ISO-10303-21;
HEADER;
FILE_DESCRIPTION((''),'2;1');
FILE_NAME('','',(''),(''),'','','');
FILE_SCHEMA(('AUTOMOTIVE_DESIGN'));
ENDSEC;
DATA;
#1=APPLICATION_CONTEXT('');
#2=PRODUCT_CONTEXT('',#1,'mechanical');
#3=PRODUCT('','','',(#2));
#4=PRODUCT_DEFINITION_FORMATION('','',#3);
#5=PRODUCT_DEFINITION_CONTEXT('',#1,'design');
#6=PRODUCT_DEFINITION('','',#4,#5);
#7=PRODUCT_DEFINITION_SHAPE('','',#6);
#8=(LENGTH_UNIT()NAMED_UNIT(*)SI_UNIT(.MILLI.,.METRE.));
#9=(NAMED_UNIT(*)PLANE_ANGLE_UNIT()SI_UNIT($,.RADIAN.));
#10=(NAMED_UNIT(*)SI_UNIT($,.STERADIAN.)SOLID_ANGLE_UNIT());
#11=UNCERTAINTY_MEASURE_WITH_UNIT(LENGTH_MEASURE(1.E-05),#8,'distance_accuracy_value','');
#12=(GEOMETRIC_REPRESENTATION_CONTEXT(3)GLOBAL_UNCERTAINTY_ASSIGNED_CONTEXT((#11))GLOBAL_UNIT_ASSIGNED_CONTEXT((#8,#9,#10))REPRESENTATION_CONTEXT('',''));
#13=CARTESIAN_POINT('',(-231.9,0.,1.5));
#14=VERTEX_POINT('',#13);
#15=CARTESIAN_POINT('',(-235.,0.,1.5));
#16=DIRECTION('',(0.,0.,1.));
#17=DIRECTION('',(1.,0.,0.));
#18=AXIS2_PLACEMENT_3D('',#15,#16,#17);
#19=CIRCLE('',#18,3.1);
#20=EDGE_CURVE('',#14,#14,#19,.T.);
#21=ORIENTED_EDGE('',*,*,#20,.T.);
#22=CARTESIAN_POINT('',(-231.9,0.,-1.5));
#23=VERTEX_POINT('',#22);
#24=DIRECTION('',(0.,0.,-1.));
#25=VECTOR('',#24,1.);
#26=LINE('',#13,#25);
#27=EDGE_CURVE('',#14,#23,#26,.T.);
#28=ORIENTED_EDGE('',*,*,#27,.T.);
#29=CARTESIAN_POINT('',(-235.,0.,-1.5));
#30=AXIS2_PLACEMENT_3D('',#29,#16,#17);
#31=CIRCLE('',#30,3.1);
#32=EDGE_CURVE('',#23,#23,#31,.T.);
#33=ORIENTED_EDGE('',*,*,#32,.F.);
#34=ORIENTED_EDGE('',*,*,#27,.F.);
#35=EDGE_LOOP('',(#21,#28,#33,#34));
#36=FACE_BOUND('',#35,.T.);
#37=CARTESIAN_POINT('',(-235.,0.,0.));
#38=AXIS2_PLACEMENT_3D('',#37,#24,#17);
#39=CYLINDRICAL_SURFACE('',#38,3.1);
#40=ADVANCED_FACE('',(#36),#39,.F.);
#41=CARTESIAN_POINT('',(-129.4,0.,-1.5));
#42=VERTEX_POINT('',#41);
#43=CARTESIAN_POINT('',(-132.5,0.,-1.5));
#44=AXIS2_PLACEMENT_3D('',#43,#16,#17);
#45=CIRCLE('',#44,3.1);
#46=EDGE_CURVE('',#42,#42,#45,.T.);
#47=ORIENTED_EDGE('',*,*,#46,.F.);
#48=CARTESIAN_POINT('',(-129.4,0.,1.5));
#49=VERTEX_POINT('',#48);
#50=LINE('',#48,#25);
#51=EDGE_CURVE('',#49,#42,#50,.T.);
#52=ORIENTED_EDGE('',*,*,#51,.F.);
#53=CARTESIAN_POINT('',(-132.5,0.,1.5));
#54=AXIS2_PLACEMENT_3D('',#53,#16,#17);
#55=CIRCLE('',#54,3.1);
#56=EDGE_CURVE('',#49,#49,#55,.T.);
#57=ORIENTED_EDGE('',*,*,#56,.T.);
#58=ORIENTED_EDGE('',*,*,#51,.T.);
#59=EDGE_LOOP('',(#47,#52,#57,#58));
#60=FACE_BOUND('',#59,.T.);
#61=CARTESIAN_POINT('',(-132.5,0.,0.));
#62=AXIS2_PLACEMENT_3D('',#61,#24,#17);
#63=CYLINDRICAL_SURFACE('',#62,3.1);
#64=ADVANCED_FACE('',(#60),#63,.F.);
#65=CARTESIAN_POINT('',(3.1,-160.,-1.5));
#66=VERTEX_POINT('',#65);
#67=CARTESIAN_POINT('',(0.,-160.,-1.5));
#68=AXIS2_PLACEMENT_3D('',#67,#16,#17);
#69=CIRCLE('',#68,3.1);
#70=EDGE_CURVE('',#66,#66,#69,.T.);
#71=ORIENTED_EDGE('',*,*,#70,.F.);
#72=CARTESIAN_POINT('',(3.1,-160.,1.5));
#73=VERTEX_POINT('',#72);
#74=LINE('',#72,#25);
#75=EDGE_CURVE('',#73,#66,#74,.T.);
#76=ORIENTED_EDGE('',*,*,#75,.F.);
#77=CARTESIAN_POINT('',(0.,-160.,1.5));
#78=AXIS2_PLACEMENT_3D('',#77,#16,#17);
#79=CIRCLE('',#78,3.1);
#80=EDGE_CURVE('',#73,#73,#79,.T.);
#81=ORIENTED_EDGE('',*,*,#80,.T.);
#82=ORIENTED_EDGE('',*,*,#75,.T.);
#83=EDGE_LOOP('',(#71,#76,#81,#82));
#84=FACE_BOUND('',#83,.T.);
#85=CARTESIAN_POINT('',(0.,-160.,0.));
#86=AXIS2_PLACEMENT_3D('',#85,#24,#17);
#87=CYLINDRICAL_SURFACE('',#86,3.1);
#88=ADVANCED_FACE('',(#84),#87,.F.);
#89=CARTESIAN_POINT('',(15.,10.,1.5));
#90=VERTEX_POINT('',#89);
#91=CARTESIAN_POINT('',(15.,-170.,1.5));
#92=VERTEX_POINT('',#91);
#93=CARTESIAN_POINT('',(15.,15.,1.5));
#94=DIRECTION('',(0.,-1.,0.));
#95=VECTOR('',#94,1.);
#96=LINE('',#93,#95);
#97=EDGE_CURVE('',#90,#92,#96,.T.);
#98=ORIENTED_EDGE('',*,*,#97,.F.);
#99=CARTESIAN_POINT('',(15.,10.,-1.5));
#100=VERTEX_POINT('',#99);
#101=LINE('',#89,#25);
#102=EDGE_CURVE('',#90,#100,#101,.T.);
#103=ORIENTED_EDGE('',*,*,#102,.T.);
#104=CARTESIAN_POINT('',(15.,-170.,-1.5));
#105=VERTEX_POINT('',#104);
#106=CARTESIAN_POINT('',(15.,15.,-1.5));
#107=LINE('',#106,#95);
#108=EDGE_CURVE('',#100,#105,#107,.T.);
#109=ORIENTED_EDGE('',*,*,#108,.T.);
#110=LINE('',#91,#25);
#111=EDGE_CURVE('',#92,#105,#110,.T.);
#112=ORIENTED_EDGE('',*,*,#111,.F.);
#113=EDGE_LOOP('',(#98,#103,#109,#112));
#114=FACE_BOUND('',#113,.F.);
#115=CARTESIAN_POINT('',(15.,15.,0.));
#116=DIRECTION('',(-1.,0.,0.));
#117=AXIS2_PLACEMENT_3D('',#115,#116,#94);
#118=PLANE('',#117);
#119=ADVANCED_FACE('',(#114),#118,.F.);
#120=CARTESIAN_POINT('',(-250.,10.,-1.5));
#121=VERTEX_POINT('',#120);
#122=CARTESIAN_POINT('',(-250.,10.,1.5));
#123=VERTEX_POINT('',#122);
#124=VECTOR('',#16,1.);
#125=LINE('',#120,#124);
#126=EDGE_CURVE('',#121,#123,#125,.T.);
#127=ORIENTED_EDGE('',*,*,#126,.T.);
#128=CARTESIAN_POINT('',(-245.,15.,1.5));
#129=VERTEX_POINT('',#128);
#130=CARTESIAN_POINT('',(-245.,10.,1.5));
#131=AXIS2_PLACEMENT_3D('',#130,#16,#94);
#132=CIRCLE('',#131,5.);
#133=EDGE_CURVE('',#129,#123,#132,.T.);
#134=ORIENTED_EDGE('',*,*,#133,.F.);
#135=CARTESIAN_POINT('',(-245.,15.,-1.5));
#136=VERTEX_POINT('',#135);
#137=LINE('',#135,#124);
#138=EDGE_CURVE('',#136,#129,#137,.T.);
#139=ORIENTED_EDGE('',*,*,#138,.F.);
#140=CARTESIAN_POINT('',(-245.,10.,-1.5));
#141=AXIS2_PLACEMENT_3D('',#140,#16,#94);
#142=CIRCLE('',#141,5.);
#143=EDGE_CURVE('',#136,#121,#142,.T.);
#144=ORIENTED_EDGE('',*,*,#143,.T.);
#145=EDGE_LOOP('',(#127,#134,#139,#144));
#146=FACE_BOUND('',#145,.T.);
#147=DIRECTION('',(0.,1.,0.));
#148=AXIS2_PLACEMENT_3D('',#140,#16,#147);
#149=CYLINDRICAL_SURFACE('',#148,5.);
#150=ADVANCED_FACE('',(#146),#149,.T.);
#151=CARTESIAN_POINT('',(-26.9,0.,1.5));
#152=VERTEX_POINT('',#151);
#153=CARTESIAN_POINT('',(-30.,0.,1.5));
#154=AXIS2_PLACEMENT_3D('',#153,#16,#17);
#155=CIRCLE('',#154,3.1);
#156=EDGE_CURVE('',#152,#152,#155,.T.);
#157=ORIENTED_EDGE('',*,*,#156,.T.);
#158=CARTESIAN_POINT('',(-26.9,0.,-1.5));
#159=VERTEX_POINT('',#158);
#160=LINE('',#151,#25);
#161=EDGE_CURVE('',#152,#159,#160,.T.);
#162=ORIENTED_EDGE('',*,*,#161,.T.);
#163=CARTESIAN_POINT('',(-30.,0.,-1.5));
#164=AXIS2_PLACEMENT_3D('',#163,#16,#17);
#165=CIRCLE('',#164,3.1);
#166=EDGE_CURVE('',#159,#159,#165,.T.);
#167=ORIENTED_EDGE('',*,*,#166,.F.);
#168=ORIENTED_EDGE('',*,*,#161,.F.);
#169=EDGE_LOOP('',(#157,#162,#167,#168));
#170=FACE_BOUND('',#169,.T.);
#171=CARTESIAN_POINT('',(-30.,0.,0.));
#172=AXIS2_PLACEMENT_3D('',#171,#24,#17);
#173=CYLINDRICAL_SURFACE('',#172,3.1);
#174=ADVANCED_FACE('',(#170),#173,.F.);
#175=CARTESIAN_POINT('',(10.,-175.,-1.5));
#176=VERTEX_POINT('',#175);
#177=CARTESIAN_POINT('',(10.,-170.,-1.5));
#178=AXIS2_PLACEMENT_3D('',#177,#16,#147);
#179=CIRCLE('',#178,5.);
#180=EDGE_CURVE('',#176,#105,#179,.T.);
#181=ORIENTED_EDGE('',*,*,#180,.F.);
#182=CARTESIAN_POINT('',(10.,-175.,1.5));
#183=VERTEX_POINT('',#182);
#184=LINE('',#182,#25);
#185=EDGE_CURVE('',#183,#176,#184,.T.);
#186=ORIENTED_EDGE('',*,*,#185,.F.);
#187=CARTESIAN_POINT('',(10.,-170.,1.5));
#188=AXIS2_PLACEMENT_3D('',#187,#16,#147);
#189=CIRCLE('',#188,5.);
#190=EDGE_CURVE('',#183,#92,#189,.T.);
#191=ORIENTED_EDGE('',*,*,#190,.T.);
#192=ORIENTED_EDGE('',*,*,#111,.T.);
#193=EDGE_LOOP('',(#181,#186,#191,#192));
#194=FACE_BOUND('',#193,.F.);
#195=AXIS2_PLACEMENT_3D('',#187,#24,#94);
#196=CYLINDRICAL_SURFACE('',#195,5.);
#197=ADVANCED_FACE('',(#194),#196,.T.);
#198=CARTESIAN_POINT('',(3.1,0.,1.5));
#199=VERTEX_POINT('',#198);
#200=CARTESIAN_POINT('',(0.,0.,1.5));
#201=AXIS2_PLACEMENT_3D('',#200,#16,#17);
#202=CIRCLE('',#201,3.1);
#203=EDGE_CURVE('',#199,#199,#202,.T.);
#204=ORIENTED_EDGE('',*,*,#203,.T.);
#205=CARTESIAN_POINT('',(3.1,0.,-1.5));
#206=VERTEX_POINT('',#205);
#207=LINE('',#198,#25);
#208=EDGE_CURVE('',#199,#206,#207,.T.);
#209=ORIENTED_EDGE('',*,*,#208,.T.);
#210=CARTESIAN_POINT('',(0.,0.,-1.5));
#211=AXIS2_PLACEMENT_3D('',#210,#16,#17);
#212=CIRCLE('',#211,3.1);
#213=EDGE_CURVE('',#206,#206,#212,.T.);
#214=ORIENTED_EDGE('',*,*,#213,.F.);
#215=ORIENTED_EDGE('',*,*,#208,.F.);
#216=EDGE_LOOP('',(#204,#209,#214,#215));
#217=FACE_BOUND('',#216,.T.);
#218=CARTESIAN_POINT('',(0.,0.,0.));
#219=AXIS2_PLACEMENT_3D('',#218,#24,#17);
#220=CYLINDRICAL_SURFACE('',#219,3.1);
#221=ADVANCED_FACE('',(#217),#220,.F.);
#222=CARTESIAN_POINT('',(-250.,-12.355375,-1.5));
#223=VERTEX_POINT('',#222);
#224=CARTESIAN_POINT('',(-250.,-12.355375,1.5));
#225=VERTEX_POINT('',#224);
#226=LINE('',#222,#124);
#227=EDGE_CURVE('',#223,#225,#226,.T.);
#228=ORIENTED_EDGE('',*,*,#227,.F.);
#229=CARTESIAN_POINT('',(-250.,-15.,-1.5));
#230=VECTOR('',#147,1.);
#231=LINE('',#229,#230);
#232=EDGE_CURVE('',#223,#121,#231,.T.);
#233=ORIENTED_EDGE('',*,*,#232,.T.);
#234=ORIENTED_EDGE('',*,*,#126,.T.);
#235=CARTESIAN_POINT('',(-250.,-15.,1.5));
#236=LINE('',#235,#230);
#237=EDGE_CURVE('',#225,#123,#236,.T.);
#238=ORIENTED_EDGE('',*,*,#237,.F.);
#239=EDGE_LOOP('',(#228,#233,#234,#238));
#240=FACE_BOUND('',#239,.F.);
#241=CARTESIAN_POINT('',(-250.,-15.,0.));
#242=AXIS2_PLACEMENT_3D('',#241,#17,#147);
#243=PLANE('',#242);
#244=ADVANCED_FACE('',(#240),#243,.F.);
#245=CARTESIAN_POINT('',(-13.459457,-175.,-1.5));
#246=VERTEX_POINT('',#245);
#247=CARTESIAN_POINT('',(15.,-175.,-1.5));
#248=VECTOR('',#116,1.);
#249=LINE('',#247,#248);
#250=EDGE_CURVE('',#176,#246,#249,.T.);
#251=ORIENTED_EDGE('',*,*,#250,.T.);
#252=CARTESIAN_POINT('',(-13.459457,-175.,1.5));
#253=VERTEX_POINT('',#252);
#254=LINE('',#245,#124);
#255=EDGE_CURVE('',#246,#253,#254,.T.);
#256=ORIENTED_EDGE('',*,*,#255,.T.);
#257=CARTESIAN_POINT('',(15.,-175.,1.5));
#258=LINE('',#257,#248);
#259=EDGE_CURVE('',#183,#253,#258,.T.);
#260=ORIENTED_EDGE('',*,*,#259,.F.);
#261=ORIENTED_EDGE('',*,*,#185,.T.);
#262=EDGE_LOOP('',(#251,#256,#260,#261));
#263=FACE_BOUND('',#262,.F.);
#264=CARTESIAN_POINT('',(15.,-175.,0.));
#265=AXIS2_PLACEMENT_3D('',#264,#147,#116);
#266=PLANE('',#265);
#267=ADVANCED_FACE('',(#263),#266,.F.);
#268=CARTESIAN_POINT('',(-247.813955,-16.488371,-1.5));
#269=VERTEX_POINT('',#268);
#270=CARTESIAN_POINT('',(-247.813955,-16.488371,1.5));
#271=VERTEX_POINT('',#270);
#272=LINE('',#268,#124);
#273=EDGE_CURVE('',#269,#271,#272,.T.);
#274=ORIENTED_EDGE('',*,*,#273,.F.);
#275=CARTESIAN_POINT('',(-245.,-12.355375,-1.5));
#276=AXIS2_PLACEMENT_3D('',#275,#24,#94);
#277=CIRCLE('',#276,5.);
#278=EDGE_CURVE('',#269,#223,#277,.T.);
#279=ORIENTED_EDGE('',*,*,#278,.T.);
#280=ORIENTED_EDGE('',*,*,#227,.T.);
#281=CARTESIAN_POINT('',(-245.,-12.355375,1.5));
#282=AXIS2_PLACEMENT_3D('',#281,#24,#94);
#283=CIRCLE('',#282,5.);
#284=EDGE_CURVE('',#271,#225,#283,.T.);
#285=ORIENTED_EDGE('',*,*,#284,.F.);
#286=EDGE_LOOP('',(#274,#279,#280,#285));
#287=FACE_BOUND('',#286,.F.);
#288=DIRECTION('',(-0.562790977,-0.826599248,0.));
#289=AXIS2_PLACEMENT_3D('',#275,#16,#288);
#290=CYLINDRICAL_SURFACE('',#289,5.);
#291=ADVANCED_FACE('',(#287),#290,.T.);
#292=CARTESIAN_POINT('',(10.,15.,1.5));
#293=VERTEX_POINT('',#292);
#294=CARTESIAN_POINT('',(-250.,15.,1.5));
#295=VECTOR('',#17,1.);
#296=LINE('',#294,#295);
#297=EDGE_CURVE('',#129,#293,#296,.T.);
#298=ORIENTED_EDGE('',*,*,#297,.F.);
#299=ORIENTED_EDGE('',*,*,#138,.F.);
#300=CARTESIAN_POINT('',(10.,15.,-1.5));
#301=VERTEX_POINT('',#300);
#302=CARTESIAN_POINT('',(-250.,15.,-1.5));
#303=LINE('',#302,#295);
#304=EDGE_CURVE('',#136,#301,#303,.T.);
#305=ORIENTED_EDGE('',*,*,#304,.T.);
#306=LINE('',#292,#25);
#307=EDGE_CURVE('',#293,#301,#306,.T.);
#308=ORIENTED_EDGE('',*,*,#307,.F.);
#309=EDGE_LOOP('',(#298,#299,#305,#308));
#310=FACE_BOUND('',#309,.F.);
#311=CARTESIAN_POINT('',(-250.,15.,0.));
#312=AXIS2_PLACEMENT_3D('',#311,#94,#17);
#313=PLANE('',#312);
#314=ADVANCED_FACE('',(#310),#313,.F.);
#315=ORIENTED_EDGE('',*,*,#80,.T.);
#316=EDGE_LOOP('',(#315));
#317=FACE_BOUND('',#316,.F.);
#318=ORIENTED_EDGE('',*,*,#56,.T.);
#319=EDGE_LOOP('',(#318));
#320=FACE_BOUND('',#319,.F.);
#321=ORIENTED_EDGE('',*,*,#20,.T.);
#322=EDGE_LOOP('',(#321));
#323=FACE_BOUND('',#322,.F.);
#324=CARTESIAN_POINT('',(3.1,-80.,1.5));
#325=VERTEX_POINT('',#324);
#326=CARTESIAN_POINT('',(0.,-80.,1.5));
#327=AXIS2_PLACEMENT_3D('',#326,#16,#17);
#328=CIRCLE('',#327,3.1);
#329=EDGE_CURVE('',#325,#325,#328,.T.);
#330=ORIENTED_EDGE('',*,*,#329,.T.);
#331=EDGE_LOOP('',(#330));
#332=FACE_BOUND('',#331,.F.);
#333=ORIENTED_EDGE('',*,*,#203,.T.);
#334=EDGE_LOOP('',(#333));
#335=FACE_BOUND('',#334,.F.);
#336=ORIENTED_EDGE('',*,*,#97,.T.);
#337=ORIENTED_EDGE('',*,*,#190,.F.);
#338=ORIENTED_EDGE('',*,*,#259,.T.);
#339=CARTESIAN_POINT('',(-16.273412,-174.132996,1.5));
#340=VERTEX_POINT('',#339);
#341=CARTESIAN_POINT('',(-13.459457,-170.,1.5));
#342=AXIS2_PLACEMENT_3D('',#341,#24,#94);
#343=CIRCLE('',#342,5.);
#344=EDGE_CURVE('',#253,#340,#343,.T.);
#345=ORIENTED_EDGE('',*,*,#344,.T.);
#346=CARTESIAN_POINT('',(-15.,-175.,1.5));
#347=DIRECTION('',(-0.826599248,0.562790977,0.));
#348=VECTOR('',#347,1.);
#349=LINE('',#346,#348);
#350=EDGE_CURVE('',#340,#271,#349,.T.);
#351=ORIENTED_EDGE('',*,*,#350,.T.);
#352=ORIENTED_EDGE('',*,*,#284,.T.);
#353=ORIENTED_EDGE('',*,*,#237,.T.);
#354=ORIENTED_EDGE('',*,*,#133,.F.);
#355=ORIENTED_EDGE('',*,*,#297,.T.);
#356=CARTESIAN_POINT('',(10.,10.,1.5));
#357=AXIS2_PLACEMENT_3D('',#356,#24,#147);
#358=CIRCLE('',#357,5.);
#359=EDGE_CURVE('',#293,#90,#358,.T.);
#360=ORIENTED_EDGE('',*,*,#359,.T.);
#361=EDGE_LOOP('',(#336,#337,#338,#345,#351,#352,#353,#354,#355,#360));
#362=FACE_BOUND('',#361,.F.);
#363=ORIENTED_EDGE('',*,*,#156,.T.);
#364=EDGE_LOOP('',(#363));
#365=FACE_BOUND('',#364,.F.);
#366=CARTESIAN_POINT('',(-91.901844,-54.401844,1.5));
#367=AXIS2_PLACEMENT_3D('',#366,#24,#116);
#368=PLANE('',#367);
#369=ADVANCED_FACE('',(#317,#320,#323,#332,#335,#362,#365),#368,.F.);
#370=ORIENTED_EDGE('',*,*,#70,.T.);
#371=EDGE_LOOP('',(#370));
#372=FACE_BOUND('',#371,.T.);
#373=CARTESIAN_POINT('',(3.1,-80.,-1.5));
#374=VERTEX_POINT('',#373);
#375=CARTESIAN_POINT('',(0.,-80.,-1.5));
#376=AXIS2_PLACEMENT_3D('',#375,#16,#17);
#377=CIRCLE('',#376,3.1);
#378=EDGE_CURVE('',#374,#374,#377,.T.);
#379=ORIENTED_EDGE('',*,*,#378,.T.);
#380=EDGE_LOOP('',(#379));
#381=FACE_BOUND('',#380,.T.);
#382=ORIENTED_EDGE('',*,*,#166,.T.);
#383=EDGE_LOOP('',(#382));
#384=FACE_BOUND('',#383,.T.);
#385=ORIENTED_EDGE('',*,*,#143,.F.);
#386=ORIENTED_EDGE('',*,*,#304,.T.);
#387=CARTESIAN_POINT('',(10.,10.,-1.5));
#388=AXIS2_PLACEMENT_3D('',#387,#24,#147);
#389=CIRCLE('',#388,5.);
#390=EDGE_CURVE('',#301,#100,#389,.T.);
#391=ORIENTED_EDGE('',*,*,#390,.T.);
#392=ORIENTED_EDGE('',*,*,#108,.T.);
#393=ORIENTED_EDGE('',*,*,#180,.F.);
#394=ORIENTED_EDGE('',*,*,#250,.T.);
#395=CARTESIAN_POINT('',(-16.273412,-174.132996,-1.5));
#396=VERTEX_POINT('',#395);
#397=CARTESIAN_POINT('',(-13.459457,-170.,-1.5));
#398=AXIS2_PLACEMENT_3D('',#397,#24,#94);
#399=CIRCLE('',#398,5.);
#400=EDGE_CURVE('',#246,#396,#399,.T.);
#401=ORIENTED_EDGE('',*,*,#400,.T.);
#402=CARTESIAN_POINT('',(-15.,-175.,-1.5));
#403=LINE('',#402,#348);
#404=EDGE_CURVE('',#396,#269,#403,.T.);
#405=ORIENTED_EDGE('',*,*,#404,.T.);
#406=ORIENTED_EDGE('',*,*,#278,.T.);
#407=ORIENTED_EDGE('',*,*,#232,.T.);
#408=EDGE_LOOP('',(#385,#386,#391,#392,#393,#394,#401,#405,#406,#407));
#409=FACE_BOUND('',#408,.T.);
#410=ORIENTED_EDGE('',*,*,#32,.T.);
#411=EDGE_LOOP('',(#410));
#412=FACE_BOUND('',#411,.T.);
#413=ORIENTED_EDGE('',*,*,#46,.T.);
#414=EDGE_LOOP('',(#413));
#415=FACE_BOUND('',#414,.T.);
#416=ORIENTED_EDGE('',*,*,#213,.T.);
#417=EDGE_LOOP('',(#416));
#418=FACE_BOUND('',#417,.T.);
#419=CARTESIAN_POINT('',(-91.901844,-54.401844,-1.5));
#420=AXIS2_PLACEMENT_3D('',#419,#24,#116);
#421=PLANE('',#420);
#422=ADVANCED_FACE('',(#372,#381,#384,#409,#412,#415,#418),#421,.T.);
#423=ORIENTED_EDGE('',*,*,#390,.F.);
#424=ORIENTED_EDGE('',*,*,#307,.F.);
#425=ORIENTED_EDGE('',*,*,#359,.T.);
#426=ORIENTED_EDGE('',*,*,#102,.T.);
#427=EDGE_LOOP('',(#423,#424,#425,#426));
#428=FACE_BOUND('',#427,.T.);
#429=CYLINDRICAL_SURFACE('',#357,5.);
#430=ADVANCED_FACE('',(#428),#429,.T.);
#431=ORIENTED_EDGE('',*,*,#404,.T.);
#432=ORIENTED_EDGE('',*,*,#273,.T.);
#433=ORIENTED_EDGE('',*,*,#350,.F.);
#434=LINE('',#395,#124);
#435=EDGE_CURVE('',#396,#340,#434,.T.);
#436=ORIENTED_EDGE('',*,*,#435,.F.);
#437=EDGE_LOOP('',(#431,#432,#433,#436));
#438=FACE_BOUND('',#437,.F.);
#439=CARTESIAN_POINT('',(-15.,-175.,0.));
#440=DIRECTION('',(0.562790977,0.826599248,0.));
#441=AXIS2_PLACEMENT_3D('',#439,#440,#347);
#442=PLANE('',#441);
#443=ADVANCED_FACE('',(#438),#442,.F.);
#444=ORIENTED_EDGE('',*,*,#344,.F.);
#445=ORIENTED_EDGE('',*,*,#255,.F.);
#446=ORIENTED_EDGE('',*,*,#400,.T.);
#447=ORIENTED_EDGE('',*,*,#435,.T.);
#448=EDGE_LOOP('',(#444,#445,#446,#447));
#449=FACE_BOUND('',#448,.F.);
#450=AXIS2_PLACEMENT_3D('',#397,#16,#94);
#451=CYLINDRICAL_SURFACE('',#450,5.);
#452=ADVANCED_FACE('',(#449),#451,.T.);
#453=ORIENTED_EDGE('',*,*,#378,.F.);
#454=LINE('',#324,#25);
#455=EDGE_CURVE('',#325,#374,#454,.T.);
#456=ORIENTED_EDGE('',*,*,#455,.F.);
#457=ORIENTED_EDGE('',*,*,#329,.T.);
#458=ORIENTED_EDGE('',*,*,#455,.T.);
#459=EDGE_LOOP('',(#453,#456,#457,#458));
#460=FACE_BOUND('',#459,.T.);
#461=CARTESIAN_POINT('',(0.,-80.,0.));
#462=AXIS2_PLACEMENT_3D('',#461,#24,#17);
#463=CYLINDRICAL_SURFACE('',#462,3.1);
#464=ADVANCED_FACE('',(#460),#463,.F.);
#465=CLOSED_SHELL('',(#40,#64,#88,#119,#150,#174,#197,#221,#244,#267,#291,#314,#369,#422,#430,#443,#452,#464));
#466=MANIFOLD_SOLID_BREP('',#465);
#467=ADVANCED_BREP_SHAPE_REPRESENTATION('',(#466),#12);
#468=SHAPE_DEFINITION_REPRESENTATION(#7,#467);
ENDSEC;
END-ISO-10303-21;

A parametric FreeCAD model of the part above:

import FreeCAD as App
import Part
import Sketcher
from FreeCAD import Vector


def edges_at(feature, points):
    """Names of the edges that pass closest to the given points."""
    edges = feature.Shape.Edges
    near = lambda p: min(range(len(edges)), key=lambda i: edges[i].distToShape(Part.Vertex(*p))[0])
    return sorted({f"Edge{near(p) + 1}" for p in points})

doc = App.newDocument("Part")
body = doc.addObject("PartDesign::Body", "Body")

# Sketch on XY plane
sketch1 = body.newObject("Sketcher::SketchObject", "Sketch")
sketch1.AttachmentSupport = (doc.getObject("XY_Plane"), [""])
sketch1.MapMode = "FlatFace"
sketch1.addGeometry([
    Part.LineSegment(Vector(15, 15, 0), Vector(-250, 15, 0)),  # 0
    Part.LineSegment(Vector(-250, 15, 0), Vector(-250, -15, 0)),  # 1
    Part.LineSegment(Vector(-250, -15, 0), Vector(-15, -175, 0)),  # 2
    Part.LineSegment(Vector(-15, -175, 0), Vector(15, -175, 0)),  # 3
    Part.LineSegment(Vector(15, -175, 0), Vector(15, 15, 0)),  # 4
    Part.Circle(Vector(0, -160, 0), Vector(0, 0, 1), 3.1),  # 5
    Part.Circle(Vector(0, -80, 0), Vector(0, 0, 1), 3.1),  # 6
    Part.Circle(Vector(0, 0, 0), Vector(0, 0, 1), 3.1),  # 7
    Part.Circle(Vector(-30, 0, 0), Vector(0, 0, 1), 3.1),  # 8
    Part.Circle(Vector(-132.5, 0, 0), Vector(0, 0, 1), 3.1),  # 9
    Part.Circle(Vector(-235, 0, 0), Vector(0, 0, 1), 3.1),  # 10
], False)
sketch1.addConstraint([
    Sketcher.Constraint("Coincident", 0, 2, 1, 1),
    Sketcher.Constraint("Coincident", 1, 2, 2, 1),
    Sketcher.Constraint("Coincident", 2, 2, 3, 1),
    Sketcher.Constraint("Coincident", 3, 2, 4, 1),
    Sketcher.Constraint("Coincident", 4, 2, 0, 1),
    Sketcher.Constraint("Horizontal", 0),
    Sketcher.Constraint("Vertical", 1),
    Sketcher.Constraint("Horizontal", 3),
    Sketcher.Constraint("Vertical", 4),
    Sketcher.Constraint("Coincident", 7, 3, -1, 1),
    Sketcher.Constraint("Equal", 5, 6),
    Sketcher.Constraint("Equal", 6, 7),
    Sketcher.Constraint("Equal", 7, 8),
    Sketcher.Constraint("Equal", 8, 9),
    Sketcher.Constraint("Equal", 9, 10),
    Sketcher.Constraint("PointOnObject", 5, 3, -2),
    Sketcher.Constraint("PointOnObject", 6, 3, -2),
    Sketcher.Constraint("PointOnObject", 8, 3, -1),
    Sketcher.Constraint("PointOnObject", 9, 3, -1),
    Sketcher.Constraint("PointOnObject", 10, 3, -1),
    Sketcher.Constraint("Equal", 3, 1),
    Sketcher.Constraint("Diameter", 5, 6.2),
    Sketcher.Constraint("DistanceX", 0, 2, 0, 1, 265.0),
    Sketcher.Constraint("DistanceX", 3, 1, 3, 2, 30.0),
    Sketcher.Constraint("DistanceY", 4, 1, 4, 2, 190.0),
    Sketcher.Constraint("DistanceY", 5, 3, -1, 1, 160.0),
    Sketcher.Constraint("DistanceY", 6, 3, -1, 1, 80.0),
    Sketcher.Constraint("DistanceX", 8, 3, -1, 1, 30.0),
    Sketcher.Constraint("DistanceX", 10, 3, -1, 1, 235.0),
    Sketcher.Constraint("DistanceX", 0, 2, -1, 1, 250.0),
    Sketcher.Constraint("DistanceY", -1, 1, 0, 2, 15.0),
    Sketcher.Constraint("DistanceX", 9, 3, -1, 1, 132.5),
])
pad1 = body.newObject("PartDesign::Pad", "Pad")
pad1.Profile = sketch1
pad1.Length = 3
pad1.Midplane = True
doc.recompute()

fillet = body.newObject("PartDesign::Fillet", "Fillet")
fillet.Base = (pad1, edges_at(pad1, [
    (-250, 15, 0),
    (-250, -15, 0),
    (15, 15, 0),
    (-15, -175, 0),
    (15, -175, 0),
]))
fillet.Radius = 5

doc.recompute()
